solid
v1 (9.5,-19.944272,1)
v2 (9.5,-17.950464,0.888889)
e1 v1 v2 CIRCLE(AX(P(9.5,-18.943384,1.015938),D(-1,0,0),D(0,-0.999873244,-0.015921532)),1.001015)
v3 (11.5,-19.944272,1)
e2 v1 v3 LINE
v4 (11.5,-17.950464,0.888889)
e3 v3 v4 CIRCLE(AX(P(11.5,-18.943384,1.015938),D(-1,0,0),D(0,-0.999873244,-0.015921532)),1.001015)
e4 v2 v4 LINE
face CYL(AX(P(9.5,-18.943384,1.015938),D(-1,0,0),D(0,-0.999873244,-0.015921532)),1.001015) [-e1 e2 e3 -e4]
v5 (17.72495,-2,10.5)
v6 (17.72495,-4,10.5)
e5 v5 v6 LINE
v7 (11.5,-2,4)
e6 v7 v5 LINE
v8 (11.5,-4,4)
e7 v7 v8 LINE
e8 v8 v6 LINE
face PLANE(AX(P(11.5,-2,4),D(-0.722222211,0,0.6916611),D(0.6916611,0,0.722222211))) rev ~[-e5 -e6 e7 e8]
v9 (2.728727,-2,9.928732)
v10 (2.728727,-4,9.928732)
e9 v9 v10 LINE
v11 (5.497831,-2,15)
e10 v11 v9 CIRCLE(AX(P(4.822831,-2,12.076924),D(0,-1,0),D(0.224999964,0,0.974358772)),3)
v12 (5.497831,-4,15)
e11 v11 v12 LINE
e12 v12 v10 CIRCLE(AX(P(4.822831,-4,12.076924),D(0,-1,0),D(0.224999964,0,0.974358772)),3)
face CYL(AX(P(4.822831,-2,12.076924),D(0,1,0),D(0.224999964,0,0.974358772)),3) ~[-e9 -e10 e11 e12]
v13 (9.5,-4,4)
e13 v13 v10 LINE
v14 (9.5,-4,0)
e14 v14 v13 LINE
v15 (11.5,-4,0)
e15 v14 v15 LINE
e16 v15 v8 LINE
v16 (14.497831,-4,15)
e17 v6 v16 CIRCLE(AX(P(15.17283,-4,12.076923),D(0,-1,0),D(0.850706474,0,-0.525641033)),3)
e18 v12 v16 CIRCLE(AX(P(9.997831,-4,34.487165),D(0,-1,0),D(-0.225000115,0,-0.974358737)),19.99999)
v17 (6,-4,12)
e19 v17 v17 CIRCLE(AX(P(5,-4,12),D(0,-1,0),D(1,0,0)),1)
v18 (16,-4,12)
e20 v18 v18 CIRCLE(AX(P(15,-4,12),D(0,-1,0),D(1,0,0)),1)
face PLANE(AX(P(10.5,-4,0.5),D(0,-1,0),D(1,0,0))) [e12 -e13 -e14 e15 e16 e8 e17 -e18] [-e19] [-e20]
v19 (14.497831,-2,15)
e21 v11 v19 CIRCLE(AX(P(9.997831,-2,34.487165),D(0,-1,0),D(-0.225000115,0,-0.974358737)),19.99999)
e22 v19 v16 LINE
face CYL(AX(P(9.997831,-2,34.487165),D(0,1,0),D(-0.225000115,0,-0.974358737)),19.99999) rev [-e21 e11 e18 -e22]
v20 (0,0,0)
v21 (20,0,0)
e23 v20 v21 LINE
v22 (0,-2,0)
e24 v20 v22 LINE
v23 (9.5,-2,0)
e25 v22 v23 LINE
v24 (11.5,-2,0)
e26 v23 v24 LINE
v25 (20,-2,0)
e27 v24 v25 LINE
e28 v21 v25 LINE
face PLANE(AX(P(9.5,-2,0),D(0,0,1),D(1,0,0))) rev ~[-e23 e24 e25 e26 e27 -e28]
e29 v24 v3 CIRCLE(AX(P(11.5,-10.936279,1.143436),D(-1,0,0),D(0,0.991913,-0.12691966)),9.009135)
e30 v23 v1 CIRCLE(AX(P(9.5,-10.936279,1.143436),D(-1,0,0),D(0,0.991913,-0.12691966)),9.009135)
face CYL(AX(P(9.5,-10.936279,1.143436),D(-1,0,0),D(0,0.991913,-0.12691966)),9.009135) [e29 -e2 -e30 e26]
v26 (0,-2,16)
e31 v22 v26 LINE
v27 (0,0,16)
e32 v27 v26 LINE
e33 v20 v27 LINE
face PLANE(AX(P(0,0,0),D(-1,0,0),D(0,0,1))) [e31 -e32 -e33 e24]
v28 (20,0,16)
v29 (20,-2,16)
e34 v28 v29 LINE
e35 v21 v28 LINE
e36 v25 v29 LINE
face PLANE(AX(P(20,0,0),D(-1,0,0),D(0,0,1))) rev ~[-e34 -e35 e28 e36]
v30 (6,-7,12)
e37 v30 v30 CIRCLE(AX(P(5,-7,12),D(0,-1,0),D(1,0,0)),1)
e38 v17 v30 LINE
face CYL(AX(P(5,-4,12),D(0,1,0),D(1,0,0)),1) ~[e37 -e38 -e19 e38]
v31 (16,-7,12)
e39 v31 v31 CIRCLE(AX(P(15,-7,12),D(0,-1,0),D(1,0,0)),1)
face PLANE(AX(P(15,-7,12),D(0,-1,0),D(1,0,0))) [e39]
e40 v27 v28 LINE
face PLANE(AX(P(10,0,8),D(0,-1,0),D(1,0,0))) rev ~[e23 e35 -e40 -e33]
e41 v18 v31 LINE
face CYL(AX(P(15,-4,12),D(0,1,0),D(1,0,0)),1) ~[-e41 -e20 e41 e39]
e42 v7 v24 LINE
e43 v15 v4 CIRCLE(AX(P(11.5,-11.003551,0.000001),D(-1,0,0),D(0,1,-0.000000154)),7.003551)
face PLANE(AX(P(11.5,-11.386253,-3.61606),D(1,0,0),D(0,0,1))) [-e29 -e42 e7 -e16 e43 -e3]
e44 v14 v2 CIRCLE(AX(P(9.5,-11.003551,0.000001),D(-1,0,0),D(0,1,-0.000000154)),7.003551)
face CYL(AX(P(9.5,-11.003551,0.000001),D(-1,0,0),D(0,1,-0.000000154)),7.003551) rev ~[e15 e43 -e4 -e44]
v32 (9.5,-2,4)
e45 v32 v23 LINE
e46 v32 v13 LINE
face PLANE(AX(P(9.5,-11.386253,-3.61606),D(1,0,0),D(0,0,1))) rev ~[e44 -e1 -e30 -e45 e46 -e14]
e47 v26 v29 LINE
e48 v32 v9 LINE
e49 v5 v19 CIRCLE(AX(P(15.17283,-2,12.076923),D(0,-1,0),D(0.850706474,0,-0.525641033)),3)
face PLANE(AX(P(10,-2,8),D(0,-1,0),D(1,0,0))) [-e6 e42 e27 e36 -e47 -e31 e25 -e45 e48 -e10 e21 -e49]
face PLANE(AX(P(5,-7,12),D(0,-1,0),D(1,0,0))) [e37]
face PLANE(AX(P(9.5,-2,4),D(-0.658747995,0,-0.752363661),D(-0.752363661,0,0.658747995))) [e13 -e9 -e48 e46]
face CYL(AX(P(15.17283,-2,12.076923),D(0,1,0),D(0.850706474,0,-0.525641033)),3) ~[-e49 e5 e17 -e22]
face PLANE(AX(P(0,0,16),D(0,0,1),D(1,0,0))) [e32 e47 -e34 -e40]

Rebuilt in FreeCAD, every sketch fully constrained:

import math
import FreeCAD as App
import Part
import Sketcher
from FreeCAD import Vector
Q = App.Units.Quantity


def add_polygon(sketch, points):
    """Adds a closed chain of lines whose ends are joined by coincident constraints."""
    first, n = sketch.GeometryCount, len(points)
    for a, b in zip(points, points[1:] + points[:1]):
        sketch.addGeometry(Part.LineSegment(App.Vector(*a, 0), App.Vector(*b, 0)), False)
    for i in range(n):
        sketch.addConstraint(Sketcher.Constraint("Coincident", first + i, 2, first + (i + 1) % n, 1))

doc = App.newDocument("Part")
params = doc.addObject("Spreadsheet::Sheet", "Params")
for row, (alias, value) in enumerate([
    ("sketch1_width", "20 mm"),
    ("sketch1_height", "16 mm"),
    ("pad1_length", "2 mm"),
    ("sketch2_radius", "3 mm"),
    ("sketch2_width", "2 mm"),
    ("sketch2_height", "3 mm"),
    ("sketch2_length", "9 mm"),
    ("pad2_length", "2 mm"),
    ("sketch3_diameter", "2 mm"),
    ("pad3_length", "3 mm"),
    ("sketch4_width", "2 mm"),
    ("sketch4_height", "1 mm"),
    ("pad4_length", "2 mm"),
    ("sketch5_width", "2 mm"),
    ("pad5_length", "2 mm"),
], start=1):
    params.set(f"A{row}", alias)
    params.set(f"B{row}", "=" + value)
    params.setAlias(f"B{row}", alias)

body = doc.addObject("PartDesign::Body", "Body")

sketch1 = body.newObject("Sketcher::SketchObject", "Sketch")
sketch1.AttachmentSupport = (doc.getObject("XZ_Plane"), [""])
sketch1.MapMode = "FlatFace"
add_polygon(sketch1, [(0, 16), (0, 0), (20, 0), (20, 16)])
sketch1.addConstraint([
    Sketcher.Constraint("Vertical", 0),
    Sketcher.Constraint("Horizontal", 1),
    Sketcher.Constraint("Vertical", 2),
    Sketcher.Constraint("Horizontal", 3),
    Sketcher.Constraint("Coincident", 0, 2, -1, 1),
    Sketcher.Constraint("DistanceX", 1, 1, 1, 2, Q("20 mm")),
    Sketcher.Constraint("DistanceY", 0, 2, 0, 1, Q("16 mm")),
])
sketch1.setExpression("Constraints[9]", "Params.sketch1_width")
sketch1.setExpression("Constraints[10]", "Params.sketch1_height")
pad1 = body.newObject("PartDesign::Pad", "Pad")
pad1.Profile = sketch1
pad1.setExpression("Length", "Params.pad1_length")

sketch2 = body.newObject("Sketcher::SketchObject", "Sketch001")
sketch2.AttachmentSupport = (doc.getObject("XZ_Plane"), [""])
sketch2.MapMode = "FlatFace"
sketch2.AttachmentOffset = App.Placement(Vector(0, 0, 2), App.Rotation())
sketch2.addGeometry([
    Part.ArcOfCircle(Part.Circle(Vector(15.2, 12.1, 0), Vector(0, 0, 1), 3), math.radians(-32), math.radians(103)),
    Part.ArcOfCircle(Part.Circle(Vector(10, 34.5, 0), Vector(0, 0, 1), 20), math.radians(-103), math.radians(-77)),
    Part.ArcOfCircle(Part.Circle(Vector(4.8, 12.1, 0), Vector(0, 0, 1), 3), math.radians(77), math.radians(226)),
    Part.LineSegment(Vector(2.7, 9.9, 0), Vector(9.5, 4, 0)),
    Part.LineSegment(Vector(9.5, 4, 0), Vector(9.5, 1, 0)),
    Part.LineSegment(Vector(9.5, 1, 0), Vector(11.5, 1, 0)),
    Part.LineSegment(Vector(11.5, 1, 0), Vector(11.5, 4, 0)),
    Part.LineSegment(Vector(11.5, 4, 0), Vector(17.7, 10.5, 0)),
], False)
sketch2.addConstraint([
    Sketcher.Constraint("Tangent", 0, 2, 1, 2),
    Sketcher.Constraint("Tangent", 1, 1, 2, 1),
    Sketcher.Constraint("Coincident", 2, 2, 3, 1),
    Sketcher.Constraint("Coincident", 3, 2, 4, 1),
    Sketcher.Constraint("Coincident", 4, 2, 5, 1),
    Sketcher.Constraint("Coincident", 5, 2, 6, 1),
    Sketcher.Constraint("Coincident", 6, 2, 7, 1),
    Sketcher.Constraint("Coincident", 7, 2, 0, 1),
    Sketcher.Constraint("Vertical", 4),
    Sketcher.Constraint("Horizontal", 5),
    Sketcher.Constraint("Vertical", 6),
    Sketcher.Constraint("Equal", 0, 2),
    Sketcher.Constraint("Horizontal", 0, 3, 2, 3),
    Sketcher.Constraint("Horizontal", 3, 2, 6, 2),
    Sketcher.Constraint("Equal", 3, 7),
    Sketcher.Constraint("Radius", 0, Q("3 mm")),
    Sketcher.Constraint("DistanceX", 5, 1, 5, 2, Q("2 mm")),
    Sketcher.Constraint("DistanceY", 4, 2, 4, 1, Q("3 mm")),
    Sketcher.Constraint("Distance", 3, Q("9 mm")),
    Sketcher.Constraint("DistanceY", -1, 1, 0, 2, Q("15 mm")),
    Sketcher.Constraint("DistanceY", -1, 1, 3, 2, Q("4 mm")),
    Sketcher.Constraint("DistanceX", 1, 1, 0, 2, Q("9 mm")),
    Sketcher.Constraint("DistanceX", -1, 1, 3, 2, Q("9.5 mm")),
    Sketcher.Constraint("DistanceY", -1, 1, 7, 2, Q("10.5 mm")),
    Sketcher.Constraint("Radius", 1, Q("19.99999 mm")),
])
sketch2.setExpression("Constraints[15]", "Params.sketch2_radius")
sketch2.setExpression("Constraints[16]", "Params.sketch2_width")
sketch2.setExpression("Constraints[17]", "Params.sketch2_height")
sketch2.setExpression("Constraints[18]", "Params.sketch2_length")
pad2 = body.newObject("PartDesign::Pad", "Pad001")
pad2.Profile = sketch2
pad2.setExpression("Length", "Params.pad2_length")

sketch3 = body.newObject("Sketcher::SketchObject", "Sketch002")
sketch3.AttachmentSupport = (doc.getObject("XZ_Plane"), [""])
sketch3.MapMode = "FlatFace"
sketch3.AttachmentOffset = App.Placement(Vector(0, 0, 4), App.Rotation())
sketch3.addGeometry([
    Part.Circle(Vector(5, 12, 0), Vector(0, 0, 1), 1),
    Part.Circle(Vector(15, 12, 0), Vector(0, 0, 1), 1),
], False)
sketch3.addConstraint([
    Sketcher.Constraint("Equal", 0, 1),
    Sketcher.Constraint("Horizontal", 0, 3, 1, 3),
    Sketcher.Constraint("Diameter", 0, Q("2 mm")),
    Sketcher.Constraint("DistanceX", -1, 1, 0, 3, Q("5 mm")),
    Sketcher.Constraint("DistanceY", -1, 1, 0, 3, Q("12 mm")),
    Sketcher.Constraint("DistanceX", -1, 1, 1, 3, Q("15 mm")),
])
sketch3.setExpression("Constraints[2]", "Params.sketch3_diameter")
pad3 = body.newObject("PartDesign::Pad", "Pad002")
pad3.Profile = sketch3
pad3.setExpression("Length", "Params.pad3_length")

sketch4 = body.newObject("Sketcher::SketchObject", "Sketch003")
sketch4.AttachmentSupport = (doc.getObject("XZ_Plane"), [""])
sketch4.MapMode = "FlatFace"
sketch4.AttachmentOffset = App.Placement(Vector(0, 0, 2), App.Rotation())
add_polygon(sketch4, [(9.5, 1), (9.5, 0), (11.5, 0), (11.5, 1)])
sketch4.addConstraint([
    Sketcher.Constraint("Vertical", 0),
    Sketcher.Constraint("Horizontal", 1),
    Sketcher.Constraint("Vertical", 2),
    Sketcher.Constraint("Horizontal", 3),
    Sketcher.Constraint("PointOnObject", 0, 2, -1),
    Sketcher.Constraint("DistanceX", 1, 1, 1, 2, Q("2 mm")),
    Sketcher.Constraint("DistanceY", 0, 2, 0, 1, Q("1 mm")),
    Sketcher.Constraint("DistanceX", -1, 1, 0, 2, Q("9.5 mm")),
])
sketch4.setExpression("Constraints[9]", "Params.sketch4_width")
sketch4.setExpression("Constraints[10]", "Params.sketch4_height")
pad4 = body.newObject("PartDesign::Pad", "Pad003")
pad4.Profile = sketch4
pad4.setExpression("Length", "Params.pad4_length")

sketch5 = body.newObject("Sketcher::SketchObject", "Sketch004")
sketch5.AttachmentSupport = (doc.getObject("YZ_Plane"), [""])
sketch5.MapMode = "FlatFace"
sketch5.AttachmentOffset = App.Placement(Vector(0, 0, 9.5), App.Rotation())
sketch5.addGeometry([
    Part.LineSegment(Vector(-4, 0, 0), Vector(-2, 0, 0)),
    Part.ArcOfCircle(Part.Circle(Vector(-10.9, 1.1, 0), Vector(0, 0, 1), 9), math.radians(-179), math.radians(-7)),
    Part.ArcOfCircle(Part.Circle(Vector(-18.9, 1, 0), Vector(0, 0, 1), 1), math.radians(-7), math.radians(181)),
    Part.ArcOfCircle(Part.Circle(Vector(-11, 0, 0), Vector(0, 0, 1), 7), math.radians(173), math.radians(360)),
], False)
sketch5.addConstraint([
    Sketcher.Constraint("Coincident", 0, 2, 1, 2),
    Sketcher.Constraint("Tangent", 1, 1, 2, 2),
    Sketcher.Constraint("Tangent", 2, 1, 3, 1),
    Sketcher.Constraint("Coincident", 3, 2, 0, 1),
    Sketcher.Constraint("Horizontal", 0),
    Sketcher.Constraint("PointOnObject", 3, 3, -1),
    Sketcher.Constraint("PointOnObject", 0, 2, -1),
    Sketcher.Constraint("DistanceX", 0, 1, 0, 2, Q("2 mm")),
    Sketcher.Constraint("DistanceX", 0, 2, -1, 1, Q("2 mm")),
    Sketcher.Constraint("DistanceY", -1, 1, 1, 1, Q("1 mm")),
    Sketcher.Constraint("Radius", 3, Q("7.003551 mm")),
    Sketcher.Constraint("Radius", 1, Q("9.009135 mm")),
    Sketcher.Constraint("Radius", 2, Q("1.001015 mm")),
])
sketch5.setExpression("Constraints[7]", "Params.sketch5_width")
pad5 = body.newObject("PartDesign::Pad", "Pad004")
pad5.Profile = sketch5
pad5.setExpression("Length", "Params.pad5_length")

doc.recompute()
